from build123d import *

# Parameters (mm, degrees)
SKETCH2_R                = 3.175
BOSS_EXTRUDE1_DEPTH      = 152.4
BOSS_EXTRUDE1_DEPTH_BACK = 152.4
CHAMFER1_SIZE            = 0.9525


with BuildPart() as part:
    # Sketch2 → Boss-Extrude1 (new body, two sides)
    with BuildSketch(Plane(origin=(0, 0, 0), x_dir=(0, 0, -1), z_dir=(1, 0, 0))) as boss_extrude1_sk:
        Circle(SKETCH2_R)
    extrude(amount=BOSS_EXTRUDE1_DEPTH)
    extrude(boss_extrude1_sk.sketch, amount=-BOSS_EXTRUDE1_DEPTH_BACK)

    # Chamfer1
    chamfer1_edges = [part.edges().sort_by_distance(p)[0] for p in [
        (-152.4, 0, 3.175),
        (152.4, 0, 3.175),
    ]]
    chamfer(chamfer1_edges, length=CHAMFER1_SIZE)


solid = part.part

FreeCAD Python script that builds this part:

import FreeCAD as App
import Part
import Sketcher
Q = App.Units.Quantity


def edges_at(feature, points):
    """Names of the edges that pass closest to the given points."""
    edges = feature.Shape.Edges
    near = lambda p: min(range(len(edges)), key=lambda i: edges[i].distToShape(Part.Vertex(*p))[0])
    return sorted({f"Edge{near(p) + 1}" for p in points})

doc = App.newDocument("Part")
body = doc.addObject("PartDesign::Body", "Body")

# Sketch on YZ plane
sketch1 = body.newObject("Sketcher::SketchObject", "Sketch")
sketch1.AttachmentSupport = (doc.getObject("YZ_Plane"), [""])
sketch1.MapMode = "FlatFace"
sketch1.addGeometry(Part.Circle(App.Vector(0, 0, 0), App.Vector(0, 0, 1), 3.2), False)
sketch1.addConstraint([
    Sketcher.Constraint("Coincident", 0, 3, -1, 1),
    Sketcher.Constraint("Diameter", 0, Q("0.25 in")),
])
pad1 = body.newObject("PartDesign::Pad", "Pad")
pad1.Profile = sketch1
pad1.Type = "TwoLengths"
pad1.Length = Q("6 in")
pad1.Length2 = Q("6 in")
doc.recompute()

chamfer = body.newObject("PartDesign::Chamfer", "Chamfer")
chamfer.Base = (pad1, edges_at(pad1, [(-152.4, 0, 3.175), (152.4, 0, 3.175)]))
chamfer.Size = Q("0.0375 in")

doc.recompute()
